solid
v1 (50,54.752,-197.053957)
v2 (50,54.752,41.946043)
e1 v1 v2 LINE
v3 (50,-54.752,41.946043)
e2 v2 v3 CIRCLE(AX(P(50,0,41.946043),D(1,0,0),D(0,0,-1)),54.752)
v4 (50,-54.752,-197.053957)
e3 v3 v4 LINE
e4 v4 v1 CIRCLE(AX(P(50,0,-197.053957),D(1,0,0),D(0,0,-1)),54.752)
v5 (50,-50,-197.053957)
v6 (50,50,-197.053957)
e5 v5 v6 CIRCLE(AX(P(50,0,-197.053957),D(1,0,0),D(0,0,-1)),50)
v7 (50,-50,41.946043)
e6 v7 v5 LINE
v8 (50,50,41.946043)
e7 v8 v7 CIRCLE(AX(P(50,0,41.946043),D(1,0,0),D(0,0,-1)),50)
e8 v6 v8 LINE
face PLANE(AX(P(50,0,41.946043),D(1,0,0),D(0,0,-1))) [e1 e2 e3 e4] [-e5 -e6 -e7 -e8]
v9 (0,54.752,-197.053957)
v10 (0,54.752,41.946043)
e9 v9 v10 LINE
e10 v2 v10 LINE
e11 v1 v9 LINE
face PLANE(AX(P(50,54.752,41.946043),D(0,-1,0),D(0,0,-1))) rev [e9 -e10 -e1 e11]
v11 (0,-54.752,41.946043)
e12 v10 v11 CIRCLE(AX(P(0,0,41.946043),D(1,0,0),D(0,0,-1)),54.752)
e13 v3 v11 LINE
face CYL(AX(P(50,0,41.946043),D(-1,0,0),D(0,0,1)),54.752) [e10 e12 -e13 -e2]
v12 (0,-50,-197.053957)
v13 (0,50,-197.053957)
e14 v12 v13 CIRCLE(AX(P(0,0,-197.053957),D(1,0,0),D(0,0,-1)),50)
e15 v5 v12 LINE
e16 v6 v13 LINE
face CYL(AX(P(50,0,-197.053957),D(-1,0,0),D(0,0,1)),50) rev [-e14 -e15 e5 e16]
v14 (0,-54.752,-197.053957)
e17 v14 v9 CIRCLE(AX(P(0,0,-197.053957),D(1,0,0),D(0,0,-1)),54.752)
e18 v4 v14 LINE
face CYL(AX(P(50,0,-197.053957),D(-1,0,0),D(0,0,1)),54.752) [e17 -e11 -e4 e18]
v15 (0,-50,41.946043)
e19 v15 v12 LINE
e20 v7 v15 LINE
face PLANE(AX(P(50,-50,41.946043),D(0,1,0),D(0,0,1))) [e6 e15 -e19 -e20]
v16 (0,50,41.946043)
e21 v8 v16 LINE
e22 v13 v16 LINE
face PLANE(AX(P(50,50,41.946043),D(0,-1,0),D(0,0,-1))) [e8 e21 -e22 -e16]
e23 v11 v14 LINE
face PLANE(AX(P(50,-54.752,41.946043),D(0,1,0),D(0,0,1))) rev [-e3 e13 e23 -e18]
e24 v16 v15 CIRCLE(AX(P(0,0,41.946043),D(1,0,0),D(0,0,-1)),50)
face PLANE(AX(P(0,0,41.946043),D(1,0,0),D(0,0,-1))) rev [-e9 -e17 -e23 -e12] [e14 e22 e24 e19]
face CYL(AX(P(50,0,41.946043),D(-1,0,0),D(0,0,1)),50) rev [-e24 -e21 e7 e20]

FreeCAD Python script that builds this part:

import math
import FreeCAD as App
import Part
import Sketcher
from FreeCAD import Vector
Q = App.Units.Quantity

doc = App.newDocument("Part")
body = doc.addObject("PartDesign::Body", "Body")

# Sketch on YZ plane
sketch1 = body.newObject("Sketcher::SketchObject", "Sketch")
sketch1.AttachmentSupport = (doc.getObject("YZ_Plane"), [""])
sketch1.MapMode = "FlatFace"
sketch1.addGeometry(Part.LineSegment(Vector(55, -197, 0), Vector(55, 42, 0)), False)
sketch1.addGeometry(Part.ArcOfCircle(Part.Circle(Vector(0, 42, 0), Vector(0, 0, 1), 55), math.radians(0), math.radians(180)), False)
sketch1.addGeometry(Part.LineSegment(Vector(-55, 42, 0), Vector(-55, -197, 0)), False)
sketch1.addGeometry(Part.ArcOfCircle(Part.Circle(Vector(0, -197, 0), Vector(0, 0, 1), 55), math.radians(180), math.radians(360)), False)
sketch1.addGeometry(Part.LineSegment(Vector(50, 42, 0), Vector(50, -197, 0)), False)
sketch1.addGeometry(Part.ArcOfCircle(Part.Circle(Vector(0, -197, 0), Vector(0, 0, 1), 50), math.radians(180), math.radians(360)), False)
sketch1.addGeometry(Part.LineSegment(Vector(-50, -197, 0), Vector(-50, 42, 0)), False)
sketch1.addGeometry(Part.ArcOfCircle(Part.Circle(Vector(0, 42, 0), Vector(0, 0, 1), 50), math.radians(0), math.radians(180)), False)
sketch1.addConstraint(Sketcher.Constraint("Tangent", 0, 2, 1, 1))
sketch1.addConstraint(Sketcher.Constraint("Tangent", 1, 2, 2, 1))
sketch1.addConstraint(Sketcher.Constraint("Tangent", 2, 2, 3, 1))
sketch1.addConstraint(Sketcher.Constraint("Tangent", 3, 2, 0, 1))
sketch1.addConstraint(Sketcher.Constraint("Tangent", 4, 2, 5, 2))
sketch1.addConstraint(Sketcher.Constraint("Tangent", 5, 1, 6, 1))
sketch1.addConstraint(Sketcher.Constraint("Tangent", 6, 2, 7, 2))
sketch1.addConstraint(Sketcher.Constraint("Tangent", 7, 1, 4, 1))
sketch1.addConstraint(Sketcher.Constraint("Vertical", 0))
sketch1.addConstraint(Sketcher.Constraint("Vertical", 2))
sketch1.addConstraint(Sketcher.Constraint("Vertical", 4))
sketch1.addConstraint(Sketcher.Constraint("Vertical", 6))
sketch1.addConstraint(Sketcher.Constraint("Coincident", 5, 3, 3, 3))
sketch1.addConstraint(Sketcher.Constraint("PointOnObject", 1, 3, -2))
sketch1.addConstraint(Sketcher.Constraint("Horizontal", 7, 3, 0, 2))
sketch1.addConstraint(Sketcher.Constraint("Radius", 5, Q("50 mm")))
sketch1.addConstraint(Sketcher.Constraint("DistanceY", 0, 1, 0, 2, Q("239 mm")))
sketch1.addConstraint(Sketcher.Constraint("Radius", 1, Q("54.752 mm")))
sketch1.addConstraint(Sketcher.Constraint("DistanceY", -1, 1, 1, 3, Q("41.946043 mm")))
pad1 = body.newObject("PartDesign::Pad", "Pad")
pad1.Profile = sketch1
pad1.Length = 50

doc.recompute()
